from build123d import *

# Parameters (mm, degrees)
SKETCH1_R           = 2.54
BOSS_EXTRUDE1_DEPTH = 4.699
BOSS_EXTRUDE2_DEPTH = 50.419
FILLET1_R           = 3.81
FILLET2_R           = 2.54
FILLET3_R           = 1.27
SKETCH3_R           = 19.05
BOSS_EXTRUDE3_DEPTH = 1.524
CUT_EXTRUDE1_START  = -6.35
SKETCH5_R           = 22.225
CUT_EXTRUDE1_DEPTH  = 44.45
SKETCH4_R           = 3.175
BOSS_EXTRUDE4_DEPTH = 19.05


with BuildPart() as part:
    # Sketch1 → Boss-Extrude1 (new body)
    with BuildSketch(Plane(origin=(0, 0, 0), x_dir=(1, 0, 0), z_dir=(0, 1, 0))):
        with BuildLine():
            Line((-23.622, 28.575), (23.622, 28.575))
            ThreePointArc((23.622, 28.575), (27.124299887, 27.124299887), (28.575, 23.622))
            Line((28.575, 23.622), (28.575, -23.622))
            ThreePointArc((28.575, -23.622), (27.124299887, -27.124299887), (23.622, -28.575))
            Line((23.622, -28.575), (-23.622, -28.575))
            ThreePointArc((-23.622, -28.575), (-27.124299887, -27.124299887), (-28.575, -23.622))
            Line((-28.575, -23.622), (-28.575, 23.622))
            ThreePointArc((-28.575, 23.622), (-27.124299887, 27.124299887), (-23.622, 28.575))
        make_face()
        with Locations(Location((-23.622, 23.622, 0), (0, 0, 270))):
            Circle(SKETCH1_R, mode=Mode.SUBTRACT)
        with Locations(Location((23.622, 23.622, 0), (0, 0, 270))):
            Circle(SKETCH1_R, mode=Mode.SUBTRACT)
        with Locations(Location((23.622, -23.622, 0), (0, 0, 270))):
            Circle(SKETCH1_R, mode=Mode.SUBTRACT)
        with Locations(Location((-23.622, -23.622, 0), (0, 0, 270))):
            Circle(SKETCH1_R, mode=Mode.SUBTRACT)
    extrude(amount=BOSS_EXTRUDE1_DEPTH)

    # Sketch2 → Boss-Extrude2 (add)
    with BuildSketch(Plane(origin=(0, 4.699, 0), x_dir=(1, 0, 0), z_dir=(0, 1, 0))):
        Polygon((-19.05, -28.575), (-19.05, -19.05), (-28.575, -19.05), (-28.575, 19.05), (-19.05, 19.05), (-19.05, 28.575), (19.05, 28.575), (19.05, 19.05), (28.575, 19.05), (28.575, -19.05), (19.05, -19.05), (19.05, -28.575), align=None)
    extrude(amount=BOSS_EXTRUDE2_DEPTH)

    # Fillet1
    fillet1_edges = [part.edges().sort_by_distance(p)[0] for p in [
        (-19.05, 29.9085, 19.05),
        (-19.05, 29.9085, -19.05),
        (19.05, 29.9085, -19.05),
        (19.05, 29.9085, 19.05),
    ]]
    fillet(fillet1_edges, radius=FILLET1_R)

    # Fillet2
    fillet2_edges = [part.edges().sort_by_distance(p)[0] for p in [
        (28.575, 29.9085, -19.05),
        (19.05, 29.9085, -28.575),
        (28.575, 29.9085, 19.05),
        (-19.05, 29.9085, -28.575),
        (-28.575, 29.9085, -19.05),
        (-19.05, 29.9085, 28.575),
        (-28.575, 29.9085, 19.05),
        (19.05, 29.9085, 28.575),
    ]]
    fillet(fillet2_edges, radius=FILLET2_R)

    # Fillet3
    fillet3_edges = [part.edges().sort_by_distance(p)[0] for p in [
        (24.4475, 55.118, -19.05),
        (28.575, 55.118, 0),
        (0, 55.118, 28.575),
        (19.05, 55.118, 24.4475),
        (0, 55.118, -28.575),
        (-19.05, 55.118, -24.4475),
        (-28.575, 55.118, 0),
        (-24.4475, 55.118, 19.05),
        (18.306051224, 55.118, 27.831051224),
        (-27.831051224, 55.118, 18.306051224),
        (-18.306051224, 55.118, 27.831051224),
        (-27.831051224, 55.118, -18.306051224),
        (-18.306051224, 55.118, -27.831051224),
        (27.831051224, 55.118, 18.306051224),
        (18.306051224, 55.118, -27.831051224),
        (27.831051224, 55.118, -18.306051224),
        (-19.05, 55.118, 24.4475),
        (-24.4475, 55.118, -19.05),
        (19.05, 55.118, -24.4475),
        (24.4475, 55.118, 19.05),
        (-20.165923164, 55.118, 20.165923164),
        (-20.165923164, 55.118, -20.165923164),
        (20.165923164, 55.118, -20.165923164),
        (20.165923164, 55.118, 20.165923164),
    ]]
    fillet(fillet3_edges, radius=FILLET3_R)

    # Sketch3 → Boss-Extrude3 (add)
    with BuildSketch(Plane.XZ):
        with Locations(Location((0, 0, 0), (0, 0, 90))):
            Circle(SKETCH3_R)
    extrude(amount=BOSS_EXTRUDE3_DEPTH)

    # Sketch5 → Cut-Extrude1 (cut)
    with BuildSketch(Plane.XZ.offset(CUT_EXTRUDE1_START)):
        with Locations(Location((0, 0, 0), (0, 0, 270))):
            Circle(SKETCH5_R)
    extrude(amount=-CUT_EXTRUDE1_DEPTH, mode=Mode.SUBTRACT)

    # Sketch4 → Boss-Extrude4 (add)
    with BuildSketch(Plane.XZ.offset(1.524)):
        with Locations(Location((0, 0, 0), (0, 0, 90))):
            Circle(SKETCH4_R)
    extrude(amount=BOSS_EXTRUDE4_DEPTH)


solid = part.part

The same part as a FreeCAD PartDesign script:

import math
import FreeCAD as App
import Part
import Sketcher

V = App.Vector
Q = App.Units.Quantity


def edges_at(feature, points):
    """Names of the edges that pass closest to the given points."""
    edges = feature.Shape.Edges
    near = lambda p: min(range(len(edges)), key=lambda i: edges[i].distToShape(Part.Vertex(*p))[0])
    return sorted({f"Edge{near(p) + 1}" for p in points})


def add_polygon(sketch, points):
    """Adds a closed chain of lines whose ends are joined by coincident constraints."""
    first, n = sketch.GeometryCount, len(points)
    for a, b in zip(points, points[1:] + points[:1]):
        sketch.addGeometry(Part.LineSegment(App.Vector(*a, 0), App.Vector(*b, 0)), False)
    for i in range(n):
        sketch.addConstraint(Sketcher.Constraint("Coincident", first + i, 2, first + (i + 1) % n, 1))

doc = App.newDocument("Part")
body = doc.addObject("PartDesign::Body", "Body")

# Sketch on XZ plane
sketch1 = doc.addObject("Sketcher::SketchObject", "Sketch")
body.addObject(sketch1)
sketch1.AttachmentSupport = (doc.XZ_Plane, [""])
sketch1.MapMode = "FlatFace"
sketch1.addGeometry([
    Part.LineSegment(V(23.6, -28.6, 0), V(-23.6, -28.6, 0)),  # 0
    Part.ArcOfCircle(Part.Circle(V(-23.6, -23.6, 0), V(0, 0, 1), 5), math.radians(-180), math.radians(-90)),  # 1
    Part.LineSegment(V(-28.6, -23.6, 0), V(-28.6, 23.6, 0)),  # 2
    Part.ArcOfCircle(Part.Circle(V(-23.6, 23.6, 0), V(0, 0, 1), 5), math.radians(90), math.radians(180)),  # 3
    Part.LineSegment(V(-23.6, 28.6, 0), V(23.6, 28.6, 0)),  # 4
    Part.ArcOfCircle(Part.Circle(V(23.6, 23.6, 0), V(0, 0, 1), 5), math.radians(0), math.radians(90)),  # 5
    Part.LineSegment(V(28.6, 23.6, 0), V(28.6, -23.6, 0)),  # 6
    Part.ArcOfCircle(Part.Circle(V(23.6, -23.6, 0), V(0, 0, 1), 5), math.radians(-90), math.radians(0)),  # 7
    Part.Circle(V(23.6, 23.6, 0), V(0, 0, 1), 2.5),  # 8
    Part.Circle(V(-23.6, 23.6, 0), V(0, 0, 1), 2.5),  # 9
    Part.Circle(V(23.6, -23.6, 0), V(0, 0, 1), 2.5),  # 10
    Part.Circle(V(-23.6, -23.6, 0), V(0, 0, 1), 2.5),  # 11
], False)
sketch1.addConstraint([
    Sketcher.Constraint("Tangent", 0, 2, 1, 2),
    Sketcher.Constraint("Tangent", 1, 1, 2, 1),
    Sketcher.Constraint("Tangent", 2, 2, 3, 2),
    Sketcher.Constraint("Tangent", 3, 1, 4, 1),
    Sketcher.Constraint("Tangent", 4, 2, 5, 2),
    Sketcher.Constraint("Tangent", 5, 1, 6, 1),
    Sketcher.Constraint("Tangent", 6, 2, 7, 2),
    Sketcher.Constraint("Tangent", 7, 1, 0, 1),
    Sketcher.Constraint("Horizontal", 0),
    Sketcher.Constraint("Vertical", 2),
    Sketcher.Constraint("Horizontal", 4),
    Sketcher.Constraint("Vertical", 6),
    Sketcher.Constraint("Coincident", 8, 3, 5, 3),
    Sketcher.Constraint("Coincident", 9, 3, 3, 3),
    Sketcher.Constraint("Coincident", 10, 3, 7, 3),
    Sketcher.Constraint("Coincident", 11, 3, 1, 3),
    Sketcher.Constraint("Equal", 1, 3),
    Sketcher.Constraint("Equal", 3, 5),
    Sketcher.Constraint("Equal", 5, 7),
    Sketcher.Constraint("Equal", 8, 9),
    Sketcher.Constraint("Equal", 9, 10),
    Sketcher.Constraint("Equal", 10, 11),
    Sketcher.Constraint("Symmetric", 1, 3, 5, 3, -1, 1),
    Sketcher.Constraint("Equal", 4, 2),
    Sketcher.Constraint("Diameter", 8, Q("0.2 in")),
    Sketcher.Constraint("Radius", 1, Q("0.195 in")),
    Sketcher.Constraint("DistanceX", 0, 2, 0, 1, Q("1.86 in")),
])
pad1 = doc.addObject("PartDesign::Pad", "Pad")
body.addObject(pad1)
pad1.Profile = sketch1
pad1.Length = Q("0.185 in")
pad1.Reversed = True

# Sketch on XZ plane
sketch2 = doc.addObject("Sketcher::SketchObject", "Sketch001")
body.addObject(sketch2)
sketch2.AttachmentSupport = (doc.XZ_Plane, [""])
sketch2.MapMode = "FlatFace"
sketch2.AttachmentOffset = App.Placement(V(0, 0, -0.185 * 25.4), App.Rotation())
add_polygon(sketch2, [(-19, 19), (-19, 29), (19, 29), (19, 19), (29, 19), (29, -19), (19, -19), (19, -29), (-19, -29), (-19, -19), (-29, -19), (-29, 19)])  # lines 0-11
sketch2.addConstraint([
    Sketcher.Constraint("Vertical", 0),
    Sketcher.Constraint("Horizontal", 1),
    Sketcher.Constraint("Vertical", 2),
    Sketcher.Constraint("Horizontal", 3),
    Sketcher.Constraint("Vertical", 4),
    Sketcher.Constraint("Horizontal", 5),
    Sketcher.Constraint("Vertical", 6),
    Sketcher.Constraint("Horizontal", 7),
    Sketcher.Constraint("Vertical", 8),
    Sketcher.Constraint("Horizontal", 9),
    Sketcher.Constraint("Vertical", 10),
    Sketcher.Constraint("Horizontal", 11),
    Sketcher.Constraint("Symmetric", 0, 2, 6, 2, -1, 1),
    Sketcher.Constraint("Symmetric", 2, 2, 8, 2, -1, 1),
    Sketcher.Constraint("Symmetric", 4, 2, 10, 2, -1, 1),
    Sketcher.Constraint("Symmetric", 5, 2, 8, 2, -2),
    Sketcher.Constraint("Equal", 11, 0),
    Sketcher.Constraint("Equal", 7, 4),
    Sketcher.Constraint("DistanceX", 1, 1, 1, 2, Q("1.5 in")),
    Sketcher.Constraint("DistanceX", 3, 1, 3, 2, Q("0.375 in")),
])
pad2 = doc.addObject("PartDesign::Pad", "Pad001")
body.addObject(pad2)
pad2.Profile = sketch2
pad2.Length = Q("1.985 in")
pad2.Reversed = True
doc.recompute()

fillet = doc.addObject("PartDesign::Fillet", "Fillet")
body.addObject(fillet)
fillet.Base = (pad2, edges_at(pad2, [
    (-19.05, 29.909, 19.05),
    (-19.05, 29.909, -19.05),
    (19.05, 29.909, -19.05),
    (19.05, 29.909, 19.05),
]))
fillet.Radius = Q("0.15 in")
doc.recompute()

fillet2 = doc.addObject("PartDesign::Fillet", "Fillet001")
body.addObject(fillet2)
fillet2.Base = (fillet, edges_at(fillet, [
    (28.575, 29.909, -19.05),
    (19.05, 29.909, -28.575),
    (28.575, 29.909, 19.05),
    (-19.05, 29.909, -28.575),
    (-28.575, 29.909, -19.05),
    (-19.05, 29.909, 28.575),
    (-28.575, 29.909, 19.05),
    (19.05, 29.909, 28.575),
]))
fillet2.Radius = Q("0.1 in")
doc.recompute()

fillet3 = doc.addObject("PartDesign::Fillet", "Fillet002")
body.addObject(fillet3)
fillet3.Base = (fillet2, edges_at(fillet2, [
    (24.448, 55.118, -19.05),
    (28.575, 55.118, 0),
    (0, 55.118, 28.575),
    (19.05, 55.118, 24.448),
    (0, 55.118, -28.575),
    (-19.05, 55.118, -24.448),
    (-28.575, 55.118, 0),
    (-24.448, 55.118, 19.05),
    (18.306, 55.118, 27.831),
    (-27.831, 55.118, 18.306),
    (-18.306, 55.118, 27.831),
    (-27.831, 55.118, -18.306),
    (-18.306, 55.118, -27.831),
    (27.831, 55.118, 18.306),
    (18.306, 55.118, -27.831),
    (27.831, 55.118, -18.306),
    (-19.05, 55.118, 24.448),
    (-24.448, 55.118, -19.05),
    (19.05, 55.118, -24.448),
    (24.448, 55.118, 19.05),
    (-20.166, 55.118, 20.166),
    (-20.166, 55.118, -20.166),
    (20.166, 55.118, -20.166),
    (20.166, 55.118, 20.166),
]))
fillet3.Radius = Q("0.05 in")

# Sketch on XZ plane
sketch3 = doc.addObject("Sketcher::SketchObject", "Sketch002")
body.addObject(sketch3)
sketch3.AttachmentSupport = (doc.XZ_Plane, [""])
sketch3.MapMode = "FlatFace"
sketch3.addGeometry(Part.Circle(V(0, 0, 0), V(0, 0, 1), 19), False)
sketch3.addConstraint([
    Sketcher.Constraint("Coincident", 0, 3, -1, 1),
    Sketcher.Constraint("Diameter", 0, Q("1.5 in")),
])
pad3 = doc.addObject("PartDesign::Pad", "Pad002")
body.addObject(pad3)
pad3.Profile = sketch3
pad3.Length = Q("0.06 in")

# Sketch on XZ plane
sketch4 = doc.addObject("Sketcher::SketchObject", "Sketch003")
body.addObject(sketch4)
sketch4.AttachmentSupport = (doc.XZ_Plane, [""])
sketch4.MapMode = "FlatFace"
sketch4.AttachmentOffset = App.Placement(V(0, 0, -0.25 * 25.4), App.Rotation())
sketch4.addGeometry(Part.Circle(V(0, 0, 0), V(0, 0, 1), 22), False)
sketch4.addConstraint([
    Sketcher.Constraint("Coincident", 0, 3, -1, 1),
    Sketcher.Constraint("Diameter", 0, Q("1.75 in")),
])
pocket1 = doc.addObject("PartDesign::Pocket", "Pocket")
body.addObject(pocket1)
pocket1.Profile = sketch4
pocket1.Length = Q("1.75 in")

# Sketch on XZ plane
sketch5 = doc.addObject("Sketcher::SketchObject", "Sketch004")
body.addObject(sketch5)
sketch5.AttachmentSupport = (doc.XZ_Plane, [""])
sketch5.MapMode = "FlatFace"
sketch5.AttachmentOffset = App.Placement(V(0, 0, 0.06 * 25.4), App.Rotation())
sketch5.addGeometry(Part.Circle(V(0, 0, 0), V(0, 0, 1), 3.2), False)
sketch5.addConstraint([
    Sketcher.Constraint("Coincident", 0, 3, -1, 1),
    Sketcher.Constraint("Diameter", 0, Q("0.25 in")),
])
pad4 = doc.addObject("PartDesign::Pad", "Pad003")
body.addObject(pad4)
pad4.Profile = sketch5
pad4.Length = Q("0.75 in")

doc.recompute()
